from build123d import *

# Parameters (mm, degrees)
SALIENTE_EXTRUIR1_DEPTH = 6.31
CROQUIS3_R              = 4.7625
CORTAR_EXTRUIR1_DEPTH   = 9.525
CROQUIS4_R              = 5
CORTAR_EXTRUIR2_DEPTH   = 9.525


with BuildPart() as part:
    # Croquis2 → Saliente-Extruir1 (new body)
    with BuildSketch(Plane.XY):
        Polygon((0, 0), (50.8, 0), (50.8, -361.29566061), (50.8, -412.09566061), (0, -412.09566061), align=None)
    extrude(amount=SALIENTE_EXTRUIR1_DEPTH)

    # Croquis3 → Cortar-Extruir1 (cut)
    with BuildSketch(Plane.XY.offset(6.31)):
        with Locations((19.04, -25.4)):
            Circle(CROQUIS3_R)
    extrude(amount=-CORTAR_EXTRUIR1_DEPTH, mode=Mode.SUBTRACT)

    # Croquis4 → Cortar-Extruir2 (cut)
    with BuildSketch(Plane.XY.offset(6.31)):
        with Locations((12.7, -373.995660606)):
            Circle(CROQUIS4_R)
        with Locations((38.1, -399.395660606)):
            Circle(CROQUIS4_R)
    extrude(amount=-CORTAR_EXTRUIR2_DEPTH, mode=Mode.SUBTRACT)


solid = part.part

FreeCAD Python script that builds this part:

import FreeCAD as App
import Part
import Sketcher
from FreeCAD import Vector
Q = App.Units.Quantity


def add_polygon(sketch, points):
    """Adds a closed chain of lines whose ends are joined by coincident constraints."""
    first, n = sketch.GeometryCount, len(points)
    for a, b in zip(points, points[1:] + points[:1]):
        sketch.addGeometry(Part.LineSegment(App.Vector(*a, 0), App.Vector(*b, 0)), False)
    for i in range(n):
        sketch.addConstraint(Sketcher.Constraint("Coincident", first + i, 2, first + (i + 1) % n, 1))

doc = App.newDocument("Part")
body = doc.addObject("PartDesign::Body", "Body")

# Sketch on XY plane
sketch1 = body.newObject("Sketcher::SketchObject", "Sketch")
sketch1.AttachmentSupport = (doc.getObject("XY_Plane"), [""])
sketch1.MapMode = "FlatFace"
add_polygon(sketch1, [(51, 0), (0, 0), (0, -412), (51, -412)])  # lines 0-3
sketch1.addConstraint(Sketcher.Constraint("Horizontal", 0))
sketch1.addConstraint(Sketcher.Constraint("Vertical", 1))
sketch1.addConstraint(Sketcher.Constraint("Horizontal", 2))
sketch1.addConstraint(Sketcher.Constraint("Vertical", 3))
sketch1.addConstraint(Sketcher.Constraint("Coincident", 0, 2, -1, 1))
sketch1.addConstraint(Sketcher.Constraint("DistanceX", 0, 2, 0, 1, Q("2 in")))
sketch1.addConstraint(Sketcher.Constraint("DistanceY", 1, 2, 1, 1, 412.095661))
pad1 = body.newObject("PartDesign::Pad", "Pad")
pad1.Profile = sketch1
pad1.Length = 6.31

# Sketch on XY plane
sketch2 = body.newObject("Sketcher::SketchObject", "Sketch001")
sketch2.AttachmentSupport = (doc.getObject("XY_Plane"), [""])
sketch2.MapMode = "FlatFace"
sketch2.AttachmentOffset = App.Placement(Vector(0, 0, 6.31), App.Rotation())
sketch2.addGeometry(Part.Circle(Vector(19, -25.4, 0), Vector(0, 0, 1), 4.8), False)
sketch2.addConstraint(Sketcher.Constraint("Diameter", 0, Q("0.375 in")))
sketch2.addConstraint(Sketcher.Constraint("DistanceY", 0, 3, -1, 1, Q("1 in")))
sketch2.addConstraint(Sketcher.Constraint("DistanceX", -1, 1, 0, 3, 19.04))
pocket1 = body.newObject("PartDesign::Pocket", "Pocket")
pocket1.Profile = sketch2
pocket1.Length = Q("0.375 in")

# Sketch on XY plane
sketch3 = body.newObject("Sketcher::SketchObject", "Sketch002")
sketch3.AttachmentSupport = (doc.getObject("XY_Plane"), [""])
sketch3.MapMode = "FlatFace"
sketch3.AttachmentOffset = App.Placement(Vector(0, 0, 6.31), App.Rotation())
sketch3.addGeometry(Part.Circle(Vector(13, -374, 0), Vector(0, 0, 1), 5), False)
sketch3.addGeometry(Part.Circle(Vector(38, -399, 0), Vector(0, 0, 1), 5), False)
sketch3.addConstraint(Sketcher.Constraint("Equal", 0, 1))
sketch3.addConstraint(Sketcher.Constraint("DistanceX", 0, 3, 1, 3, Q("1 in")))
sketch3.addConstraint(Sketcher.Constraint("DistanceY", 1, 3, 0, 3, Q("1 in")))
sketch3.addConstraint(Sketcher.Constraint("DistanceX", -1, 1, 0, 3, Q("0.5 in")))
sketch3.addConstraint(Sketcher.Constraint("Diameter", 0, 10.0))
sketch3.addConstraint(Sketcher.Constraint("DistanceY", 0, 3, -1, 1, 373.995661))
pocket2 = body.newObject("PartDesign::Pocket", "Pocket001")
pocket2.Profile = sketch3
pocket2.Length = Q("0.375 in")

doc.recompute()
